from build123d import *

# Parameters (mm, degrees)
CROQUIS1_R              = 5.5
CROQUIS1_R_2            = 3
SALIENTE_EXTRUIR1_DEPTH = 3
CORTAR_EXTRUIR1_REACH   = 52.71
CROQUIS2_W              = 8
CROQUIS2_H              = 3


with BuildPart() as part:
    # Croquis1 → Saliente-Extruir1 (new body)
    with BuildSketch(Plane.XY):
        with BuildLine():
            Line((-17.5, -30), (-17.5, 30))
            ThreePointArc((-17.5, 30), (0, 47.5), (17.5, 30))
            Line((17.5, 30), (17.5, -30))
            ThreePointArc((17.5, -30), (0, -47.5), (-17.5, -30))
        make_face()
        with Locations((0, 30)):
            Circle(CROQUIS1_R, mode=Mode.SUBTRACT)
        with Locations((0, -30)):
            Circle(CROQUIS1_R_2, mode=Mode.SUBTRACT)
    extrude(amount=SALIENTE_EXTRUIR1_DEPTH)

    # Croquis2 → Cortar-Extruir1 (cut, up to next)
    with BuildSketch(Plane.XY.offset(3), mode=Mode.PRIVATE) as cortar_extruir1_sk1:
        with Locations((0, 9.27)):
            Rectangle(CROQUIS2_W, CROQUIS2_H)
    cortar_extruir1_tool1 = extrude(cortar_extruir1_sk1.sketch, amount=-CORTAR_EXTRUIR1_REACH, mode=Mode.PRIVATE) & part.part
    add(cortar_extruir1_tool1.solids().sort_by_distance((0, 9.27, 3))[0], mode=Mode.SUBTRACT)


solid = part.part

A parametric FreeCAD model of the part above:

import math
import FreeCAD as App
import Part
import Sketcher
from FreeCAD import Vector
Q = App.Units.Quantity

doc = App.newDocument("Part")
body = doc.addObject("PartDesign::Body", "Body")

sketch1 = body.newObject("Sketcher::SketchObject", "Sketch")
sketch1.AttachmentSupport = (doc.getObject("XY_Plane"), [""])
sketch1.MapMode = "FlatFace"
sketch1.addGeometry([
    Part.LineSegment(Vector(-17.5, 30, 0), Vector(-17.5, -30, 0)),
    Part.ArcOfCircle(Part.Circle(Vector(0, -30, 0), Vector(0, 0, 1), 17.5), math.radians(180), math.radians(360)),
    Part.LineSegment(Vector(17.5, -30, 0), Vector(17.5, 30, 0)),
    Part.ArcOfCircle(Part.Circle(Vector(0, 30, 0), Vector(0, 0, 1), 17.5), math.radians(0), math.radians(180)),
    Part.Circle(Vector(0, -30, 0), Vector(0, 0, 1), 3),
    Part.Circle(Vector(0, 30, 0), Vector(0, 0, 1), 5.5),
], False)
sketch1.addConstraint([
    Sketcher.Constraint("Tangent", 0, 2, 1, 1),
    Sketcher.Constraint("Tangent", 1, 2, 2, 1),
    Sketcher.Constraint("Tangent", 2, 2, 3, 1),
    Sketcher.Constraint("Tangent", 3, 2, 0, 1),
    Sketcher.Constraint("Vertical", 0),
    Sketcher.Constraint("Vertical", 2),
    Sketcher.Constraint("Coincident", 4, 3, 1, 3),
    Sketcher.Constraint("Coincident", 5, 3, 3, 3),
    Sketcher.Constraint("Symmetric", 1, 3, 3, 3, -1, 1),
    Sketcher.Constraint("Diameter", 4, Q("6 mm")),
    Sketcher.Constraint("Diameter", 5, Q("11 mm")),
    Sketcher.Constraint("Radius", 1, Q("17.5 mm")),
    Sketcher.Constraint("DistanceY", 0, 2, 0, 1, Q("60 mm")),
])
pad1 = body.newObject("PartDesign::Pad", "Pad")
pad1.Profile = sketch1
pad1.Length = 3

sketch2 = body.newObject("Sketcher::SketchObject", "Sketch001")
sketch2.AttachmentSupport = (doc.getObject("XY_Plane"), [""])
sketch2.MapMode = "FlatFace"
sketch2.AttachmentOffset = App.Placement(Vector(0, 0, 3), App.Rotation())
sketch2.addGeometry([
    Part.LineSegment(Vector(-4, 10.77, 0), Vector(-4, 7.77, 0)),
    Part.LineSegment(Vector(-4, 7.77, 0), Vector(4, 7.77, 0)),
    Part.LineSegment(Vector(4, 7.77, 0), Vector(4, 10.77, 0)),
    Part.LineSegment(Vector(4, 10.77, 0), Vector(-4, 10.77, 0)),
], False)
sketch2.addConstraint([
    Sketcher.Constraint("Coincident", 0, 2, 1, 1),
    Sketcher.Constraint("Coincident", 1, 2, 2, 1),
    Sketcher.Constraint("Coincident", 2, 2, 3, 1),
    Sketcher.Constraint("Coincident", 3, 2, 0, 1),
    Sketcher.Constraint("Vertical", 0),
    Sketcher.Constraint("Horizontal", 1),
    Sketcher.Constraint("Vertical", 2),
    Sketcher.Constraint("Horizontal", 3),
    Sketcher.Constraint("DistanceX", 1, 1, 1, 2, Q("8 mm")),
    Sketcher.Constraint("DistanceY", 0, 2, 0, 1, Q("3 mm")),
    Sketcher.Constraint("DistanceX", 0, 2, -1, 1, Q("4 mm")),
    Sketcher.Constraint("DistanceY", -1, 1, 0, 2, Q("7.77 mm")),
])
pocket1 = body.newObject("PartDesign::Pocket", "Pocket")
pocket1.Profile = sketch2
pocket1.Type = "UpToFirst"

doc.recompute()
